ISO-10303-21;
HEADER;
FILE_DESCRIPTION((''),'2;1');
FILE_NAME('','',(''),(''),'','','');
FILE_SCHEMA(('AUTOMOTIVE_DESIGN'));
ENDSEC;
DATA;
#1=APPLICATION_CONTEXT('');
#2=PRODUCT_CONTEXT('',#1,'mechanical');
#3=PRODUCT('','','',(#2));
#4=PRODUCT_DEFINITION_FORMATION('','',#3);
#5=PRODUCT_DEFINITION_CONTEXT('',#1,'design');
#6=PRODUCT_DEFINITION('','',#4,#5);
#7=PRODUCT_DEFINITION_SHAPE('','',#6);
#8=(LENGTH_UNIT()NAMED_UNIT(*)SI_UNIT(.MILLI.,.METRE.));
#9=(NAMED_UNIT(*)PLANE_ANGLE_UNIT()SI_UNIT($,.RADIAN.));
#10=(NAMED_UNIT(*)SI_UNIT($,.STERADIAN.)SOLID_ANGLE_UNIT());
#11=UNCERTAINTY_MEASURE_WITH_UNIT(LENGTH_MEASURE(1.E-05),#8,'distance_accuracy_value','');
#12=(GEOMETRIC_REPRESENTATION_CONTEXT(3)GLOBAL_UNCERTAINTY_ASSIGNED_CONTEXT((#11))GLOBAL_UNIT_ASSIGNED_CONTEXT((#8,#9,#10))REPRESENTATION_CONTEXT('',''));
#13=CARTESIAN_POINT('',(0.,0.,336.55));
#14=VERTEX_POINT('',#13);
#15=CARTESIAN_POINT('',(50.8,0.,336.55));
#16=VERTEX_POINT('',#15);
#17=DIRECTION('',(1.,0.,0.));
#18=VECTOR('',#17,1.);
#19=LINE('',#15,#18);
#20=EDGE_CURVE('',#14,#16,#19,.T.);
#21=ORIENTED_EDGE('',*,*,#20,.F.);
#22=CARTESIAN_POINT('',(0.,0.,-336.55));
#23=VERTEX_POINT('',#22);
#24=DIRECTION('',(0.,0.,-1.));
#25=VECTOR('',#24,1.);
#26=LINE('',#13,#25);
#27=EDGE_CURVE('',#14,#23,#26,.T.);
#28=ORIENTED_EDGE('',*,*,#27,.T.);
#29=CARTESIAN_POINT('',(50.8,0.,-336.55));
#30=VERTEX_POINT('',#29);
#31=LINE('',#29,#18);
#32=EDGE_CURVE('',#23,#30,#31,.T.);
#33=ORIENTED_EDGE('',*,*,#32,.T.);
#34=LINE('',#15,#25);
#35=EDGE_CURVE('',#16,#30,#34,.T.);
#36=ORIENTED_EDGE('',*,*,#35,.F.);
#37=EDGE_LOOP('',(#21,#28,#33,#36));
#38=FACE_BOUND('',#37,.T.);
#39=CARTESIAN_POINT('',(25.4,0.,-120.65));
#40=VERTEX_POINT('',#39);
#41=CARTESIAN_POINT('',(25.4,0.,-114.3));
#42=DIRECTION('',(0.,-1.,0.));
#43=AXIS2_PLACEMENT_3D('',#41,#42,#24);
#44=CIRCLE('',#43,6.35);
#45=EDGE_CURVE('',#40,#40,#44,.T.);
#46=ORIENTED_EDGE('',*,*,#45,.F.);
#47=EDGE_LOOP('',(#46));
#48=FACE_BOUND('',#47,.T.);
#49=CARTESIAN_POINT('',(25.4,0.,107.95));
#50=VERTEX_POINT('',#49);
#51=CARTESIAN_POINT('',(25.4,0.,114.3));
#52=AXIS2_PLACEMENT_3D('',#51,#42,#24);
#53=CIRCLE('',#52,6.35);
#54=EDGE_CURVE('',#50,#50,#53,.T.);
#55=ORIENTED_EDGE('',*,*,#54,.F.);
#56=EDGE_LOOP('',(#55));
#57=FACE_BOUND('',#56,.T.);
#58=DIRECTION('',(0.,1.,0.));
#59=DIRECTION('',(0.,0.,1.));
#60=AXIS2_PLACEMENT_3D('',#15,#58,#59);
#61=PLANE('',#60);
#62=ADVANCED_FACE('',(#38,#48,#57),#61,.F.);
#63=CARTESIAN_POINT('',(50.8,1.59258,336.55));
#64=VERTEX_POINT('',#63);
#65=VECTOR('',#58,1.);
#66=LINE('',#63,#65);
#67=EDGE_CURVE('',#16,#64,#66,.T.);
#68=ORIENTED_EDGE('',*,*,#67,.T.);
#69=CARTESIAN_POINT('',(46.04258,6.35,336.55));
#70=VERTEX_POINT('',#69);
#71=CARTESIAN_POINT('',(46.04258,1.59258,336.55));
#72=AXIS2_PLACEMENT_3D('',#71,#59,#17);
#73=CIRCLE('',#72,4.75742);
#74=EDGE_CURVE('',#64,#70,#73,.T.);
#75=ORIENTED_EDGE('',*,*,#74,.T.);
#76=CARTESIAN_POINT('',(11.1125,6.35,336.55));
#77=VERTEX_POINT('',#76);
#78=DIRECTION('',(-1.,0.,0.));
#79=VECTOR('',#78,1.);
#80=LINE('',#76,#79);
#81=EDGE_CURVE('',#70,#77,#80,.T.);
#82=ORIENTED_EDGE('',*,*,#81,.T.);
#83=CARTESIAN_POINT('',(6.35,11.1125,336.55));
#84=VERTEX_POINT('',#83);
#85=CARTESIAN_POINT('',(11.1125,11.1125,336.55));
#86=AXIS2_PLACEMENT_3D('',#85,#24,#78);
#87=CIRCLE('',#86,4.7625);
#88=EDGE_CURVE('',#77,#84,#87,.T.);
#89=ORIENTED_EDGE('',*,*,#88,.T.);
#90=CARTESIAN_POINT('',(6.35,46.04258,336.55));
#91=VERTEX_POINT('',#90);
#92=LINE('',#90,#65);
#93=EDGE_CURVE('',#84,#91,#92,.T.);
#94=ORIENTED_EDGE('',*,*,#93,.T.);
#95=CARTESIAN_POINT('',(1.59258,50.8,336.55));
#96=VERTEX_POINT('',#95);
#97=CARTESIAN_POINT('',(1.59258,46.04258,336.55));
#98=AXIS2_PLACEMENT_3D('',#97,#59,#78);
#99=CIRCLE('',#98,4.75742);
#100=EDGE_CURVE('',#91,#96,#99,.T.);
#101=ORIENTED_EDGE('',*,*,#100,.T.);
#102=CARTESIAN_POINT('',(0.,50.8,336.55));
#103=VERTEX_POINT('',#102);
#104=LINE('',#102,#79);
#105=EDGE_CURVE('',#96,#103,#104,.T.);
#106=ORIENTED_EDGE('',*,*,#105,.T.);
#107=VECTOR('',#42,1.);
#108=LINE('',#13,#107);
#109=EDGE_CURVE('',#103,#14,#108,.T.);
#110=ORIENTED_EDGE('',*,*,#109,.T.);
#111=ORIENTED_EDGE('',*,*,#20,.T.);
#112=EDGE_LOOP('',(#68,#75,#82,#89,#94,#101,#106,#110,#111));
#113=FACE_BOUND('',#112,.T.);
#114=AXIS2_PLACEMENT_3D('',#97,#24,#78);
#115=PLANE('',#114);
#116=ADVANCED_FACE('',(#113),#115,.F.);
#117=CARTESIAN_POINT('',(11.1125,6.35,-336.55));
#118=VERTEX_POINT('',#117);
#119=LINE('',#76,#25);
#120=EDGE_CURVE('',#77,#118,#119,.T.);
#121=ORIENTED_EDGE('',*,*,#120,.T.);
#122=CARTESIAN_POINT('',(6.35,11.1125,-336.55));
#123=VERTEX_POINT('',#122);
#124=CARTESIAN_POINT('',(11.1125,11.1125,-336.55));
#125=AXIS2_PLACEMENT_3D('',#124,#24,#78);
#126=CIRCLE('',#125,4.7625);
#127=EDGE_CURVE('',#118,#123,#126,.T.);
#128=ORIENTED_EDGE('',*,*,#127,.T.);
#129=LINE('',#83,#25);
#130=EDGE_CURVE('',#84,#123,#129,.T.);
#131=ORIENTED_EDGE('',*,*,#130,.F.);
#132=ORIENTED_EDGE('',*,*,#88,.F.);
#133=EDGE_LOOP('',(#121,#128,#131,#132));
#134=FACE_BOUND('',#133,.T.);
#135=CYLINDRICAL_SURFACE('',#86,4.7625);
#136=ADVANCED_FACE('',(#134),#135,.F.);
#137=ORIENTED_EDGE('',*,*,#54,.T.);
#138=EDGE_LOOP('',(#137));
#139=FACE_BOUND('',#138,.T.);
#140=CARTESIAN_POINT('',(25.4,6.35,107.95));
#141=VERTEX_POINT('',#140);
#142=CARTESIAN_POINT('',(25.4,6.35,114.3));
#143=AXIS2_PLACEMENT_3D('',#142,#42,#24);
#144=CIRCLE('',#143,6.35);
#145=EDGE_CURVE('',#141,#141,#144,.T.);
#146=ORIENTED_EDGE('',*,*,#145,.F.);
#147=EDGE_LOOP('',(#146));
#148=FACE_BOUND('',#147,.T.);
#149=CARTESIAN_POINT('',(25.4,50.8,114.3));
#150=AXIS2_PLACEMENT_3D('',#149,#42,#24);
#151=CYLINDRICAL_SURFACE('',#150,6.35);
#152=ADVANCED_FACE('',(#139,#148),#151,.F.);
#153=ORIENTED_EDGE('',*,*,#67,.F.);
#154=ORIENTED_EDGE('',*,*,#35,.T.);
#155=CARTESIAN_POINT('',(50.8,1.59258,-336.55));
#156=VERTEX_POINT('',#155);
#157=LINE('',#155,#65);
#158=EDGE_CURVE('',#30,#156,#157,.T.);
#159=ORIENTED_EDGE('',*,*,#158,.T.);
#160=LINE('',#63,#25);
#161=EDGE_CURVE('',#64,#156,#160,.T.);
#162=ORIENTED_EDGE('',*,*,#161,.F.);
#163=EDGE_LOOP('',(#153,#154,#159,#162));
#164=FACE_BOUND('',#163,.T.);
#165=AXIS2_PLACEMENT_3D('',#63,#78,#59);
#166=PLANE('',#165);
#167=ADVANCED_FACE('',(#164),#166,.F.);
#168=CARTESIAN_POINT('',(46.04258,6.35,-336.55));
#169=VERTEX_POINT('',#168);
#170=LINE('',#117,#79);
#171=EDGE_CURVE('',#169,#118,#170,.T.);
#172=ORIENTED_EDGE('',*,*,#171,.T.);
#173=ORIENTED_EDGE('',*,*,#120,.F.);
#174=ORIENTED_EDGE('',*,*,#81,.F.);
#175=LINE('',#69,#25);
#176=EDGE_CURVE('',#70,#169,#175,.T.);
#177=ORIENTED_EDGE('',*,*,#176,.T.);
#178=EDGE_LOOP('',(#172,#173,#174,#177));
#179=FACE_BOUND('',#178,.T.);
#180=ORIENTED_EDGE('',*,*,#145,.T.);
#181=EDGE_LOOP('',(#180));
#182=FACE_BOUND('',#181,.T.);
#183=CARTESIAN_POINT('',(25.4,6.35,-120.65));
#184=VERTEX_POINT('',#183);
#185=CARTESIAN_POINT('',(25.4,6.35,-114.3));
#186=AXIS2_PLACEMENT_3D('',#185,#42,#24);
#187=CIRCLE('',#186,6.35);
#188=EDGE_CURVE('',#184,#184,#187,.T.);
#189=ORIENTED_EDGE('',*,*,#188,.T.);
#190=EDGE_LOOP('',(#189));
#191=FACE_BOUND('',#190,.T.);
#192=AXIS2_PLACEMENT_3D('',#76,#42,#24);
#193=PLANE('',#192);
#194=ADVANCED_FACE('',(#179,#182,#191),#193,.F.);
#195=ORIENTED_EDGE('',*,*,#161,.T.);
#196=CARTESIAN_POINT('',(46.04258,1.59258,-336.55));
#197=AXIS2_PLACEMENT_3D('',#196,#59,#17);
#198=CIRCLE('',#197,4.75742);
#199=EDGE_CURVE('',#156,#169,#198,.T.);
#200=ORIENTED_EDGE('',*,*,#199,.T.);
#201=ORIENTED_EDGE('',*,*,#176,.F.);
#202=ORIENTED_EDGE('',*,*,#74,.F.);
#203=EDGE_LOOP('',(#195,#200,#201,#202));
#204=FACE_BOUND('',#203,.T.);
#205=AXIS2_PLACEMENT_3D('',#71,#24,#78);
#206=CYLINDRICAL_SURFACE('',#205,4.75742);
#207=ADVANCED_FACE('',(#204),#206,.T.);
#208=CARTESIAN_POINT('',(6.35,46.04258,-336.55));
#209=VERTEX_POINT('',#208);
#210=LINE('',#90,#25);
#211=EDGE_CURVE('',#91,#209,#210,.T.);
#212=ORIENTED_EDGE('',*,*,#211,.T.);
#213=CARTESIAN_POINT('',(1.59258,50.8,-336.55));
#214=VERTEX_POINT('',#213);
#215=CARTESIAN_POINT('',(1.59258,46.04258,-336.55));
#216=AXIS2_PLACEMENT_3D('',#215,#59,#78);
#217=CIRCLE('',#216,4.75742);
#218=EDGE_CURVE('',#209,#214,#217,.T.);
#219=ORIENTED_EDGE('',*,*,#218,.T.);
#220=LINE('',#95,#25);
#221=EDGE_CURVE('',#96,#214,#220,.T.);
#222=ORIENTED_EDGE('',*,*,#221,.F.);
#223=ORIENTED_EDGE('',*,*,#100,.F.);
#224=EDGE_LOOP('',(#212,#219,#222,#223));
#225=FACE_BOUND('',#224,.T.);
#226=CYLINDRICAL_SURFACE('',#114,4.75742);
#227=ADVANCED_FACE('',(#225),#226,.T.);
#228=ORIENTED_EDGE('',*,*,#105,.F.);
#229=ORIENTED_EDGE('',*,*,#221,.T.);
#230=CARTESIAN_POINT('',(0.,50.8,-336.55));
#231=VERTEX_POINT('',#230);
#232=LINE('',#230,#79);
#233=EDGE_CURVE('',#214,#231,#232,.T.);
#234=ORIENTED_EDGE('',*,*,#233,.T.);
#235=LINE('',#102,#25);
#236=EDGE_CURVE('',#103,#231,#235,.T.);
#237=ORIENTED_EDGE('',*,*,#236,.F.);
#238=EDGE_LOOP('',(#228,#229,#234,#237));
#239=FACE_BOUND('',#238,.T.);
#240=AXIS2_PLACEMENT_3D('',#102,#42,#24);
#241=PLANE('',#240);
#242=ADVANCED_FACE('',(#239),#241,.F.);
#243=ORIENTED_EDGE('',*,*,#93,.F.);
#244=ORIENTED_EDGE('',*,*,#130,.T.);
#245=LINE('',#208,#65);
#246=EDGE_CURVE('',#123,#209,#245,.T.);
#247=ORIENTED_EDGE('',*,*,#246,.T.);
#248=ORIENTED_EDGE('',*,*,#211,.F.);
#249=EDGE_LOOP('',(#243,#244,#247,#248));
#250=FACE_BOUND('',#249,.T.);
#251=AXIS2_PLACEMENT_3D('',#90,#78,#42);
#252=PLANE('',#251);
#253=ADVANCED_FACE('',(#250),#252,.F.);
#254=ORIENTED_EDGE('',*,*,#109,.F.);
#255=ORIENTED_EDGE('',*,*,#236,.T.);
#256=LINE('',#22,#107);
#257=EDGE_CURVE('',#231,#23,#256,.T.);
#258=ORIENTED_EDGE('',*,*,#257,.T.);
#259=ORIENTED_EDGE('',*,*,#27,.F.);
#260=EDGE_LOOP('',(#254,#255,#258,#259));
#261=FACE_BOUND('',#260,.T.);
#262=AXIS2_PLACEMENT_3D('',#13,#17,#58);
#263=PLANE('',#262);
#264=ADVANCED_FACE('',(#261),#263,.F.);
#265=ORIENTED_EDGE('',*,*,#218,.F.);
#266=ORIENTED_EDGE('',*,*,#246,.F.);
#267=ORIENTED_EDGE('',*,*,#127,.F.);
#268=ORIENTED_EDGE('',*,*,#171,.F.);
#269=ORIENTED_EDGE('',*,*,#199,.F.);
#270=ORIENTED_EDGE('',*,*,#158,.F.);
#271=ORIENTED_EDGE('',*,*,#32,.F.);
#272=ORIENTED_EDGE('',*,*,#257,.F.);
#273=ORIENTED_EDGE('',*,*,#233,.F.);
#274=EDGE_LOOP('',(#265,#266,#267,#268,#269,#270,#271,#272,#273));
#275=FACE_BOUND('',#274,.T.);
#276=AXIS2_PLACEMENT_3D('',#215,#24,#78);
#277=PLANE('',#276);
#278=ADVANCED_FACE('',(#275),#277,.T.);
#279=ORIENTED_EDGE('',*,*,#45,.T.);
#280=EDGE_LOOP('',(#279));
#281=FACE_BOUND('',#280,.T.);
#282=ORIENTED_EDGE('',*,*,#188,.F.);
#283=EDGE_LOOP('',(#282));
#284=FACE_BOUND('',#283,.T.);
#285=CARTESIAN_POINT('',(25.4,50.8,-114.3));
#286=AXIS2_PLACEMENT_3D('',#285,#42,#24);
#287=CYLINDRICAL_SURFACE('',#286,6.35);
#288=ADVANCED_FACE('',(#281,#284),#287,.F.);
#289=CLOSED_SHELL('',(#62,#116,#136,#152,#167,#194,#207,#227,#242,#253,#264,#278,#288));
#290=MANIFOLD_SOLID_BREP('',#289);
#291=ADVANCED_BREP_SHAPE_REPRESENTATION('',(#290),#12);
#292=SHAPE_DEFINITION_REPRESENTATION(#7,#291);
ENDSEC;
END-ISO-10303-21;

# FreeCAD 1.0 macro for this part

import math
import FreeCAD as App
import Part
import Sketcher
Q = App.Units.Quantity

doc = App.newDocument("Part")
body = doc.addObject("PartDesign::Body", "Body")

sketch1 = doc.addObject("Sketcher::SketchObject", "Sketch")
body.addObject(sketch1)
sketch1.AttachmentSupport = (doc.XY_Plane, [""])
sketch1.MapMode = "FlatFace"
sketch1.addGeometry([
    Part.LineSegment(App.Vector(0, 50.8, 0), App.Vector(0, 0, 0)),
    Part.LineSegment(App.Vector(0, 0, 0), App.Vector(50.8, 0, 0)),
    Part.LineSegment(App.Vector(50.8, 0, 0), App.Vector(50.8, 1.6, 0)),
    Part.ArcOfCircle(Part.Circle(App.Vector(46, 1.6, 0), App.Vector(0, 0, 1), 4.8), math.radians(0), math.radians(90)),
    Part.LineSegment(App.Vector(46, 6.3, 0), App.Vector(11.1, 6.3, 0)),
    Part.ArcOfCircle(Part.Circle(App.Vector(11.1, 11.1, 0), App.Vector(0, 0, 1), 4.8), math.radians(-180), math.radians(-90)),
    Part.LineSegment(App.Vector(6.3, 11.1, 0), App.Vector(6.3, 46, 0)),
    Part.ArcOfCircle(Part.Circle(App.Vector(1.6, 46, 0), App.Vector(0, 0, 1), 4.8), math.radians(0), math.radians(90)),
    Part.LineSegment(App.Vector(1.6, 50.8, 0), App.Vector(0, 50.8, 0)),
], False)
sketch1.addConstraint([
    Sketcher.Constraint("Coincident", 0, 2, 1, 1),
    Sketcher.Constraint("Coincident", 1, 2, 2, 1),
    Sketcher.Constraint("Tangent", 2, 2, 3, 1),
    Sketcher.Constraint("Tangent", 3, 2, 4, 1),
    Sketcher.Constraint("Tangent", 4, 2, 5, 2),
    Sketcher.Constraint("Tangent", 5, 1, 6, 1),
    Sketcher.Constraint("Tangent", 6, 2, 7, 1),
    Sketcher.Constraint("Tangent", 7, 2, 8, 1),
    Sketcher.Constraint("Coincident", 8, 2, 0, 1),
    Sketcher.Constraint("Vertical", 0),
    Sketcher.Constraint("Horizontal", 1),
    Sketcher.Constraint("Vertical", 2),
    Sketcher.Constraint("Horizontal", 4),
    Sketcher.Constraint("Vertical", 6),
    Sketcher.Constraint("Horizontal", 8),
    Sketcher.Constraint("Coincident", 0, 2, -1, 1),
    Sketcher.Constraint("Equal", 3, 7),
    Sketcher.Constraint("Equal", 1, 0),
    Sketcher.Constraint("Equal", 8, 2),
    Sketcher.Constraint("DistanceX", 1, 1, 1, 2, Q("2 in")),
    Sketcher.Constraint("Radius", 5, Q("0.1875 in")),
    Sketcher.Constraint("Radius", 3, Q("0.1873 in")),
    Sketcher.Constraint("DistanceY", -1, 1, 3, 2, Q("0.25 in")),
])
pad1 = doc.addObject("PartDesign::Pad", "Pad")
body.addObject(pad1)
pad1.Profile = sketch1
pad1.Length = Q("26.5 in")
pad1.Midplane = True

sketch2 = doc.addObject("Sketcher::SketchObject", "Sketch001")
body.addObject(sketch2)
sketch2.AttachmentSupport = (doc.XZ_Plane, [""])
sketch2.MapMode = "FlatFace"
sketch2.addGeometry([
    Part.Circle(App.Vector(25, -114, 0), App.Vector(0, 0, 1), 6),
    Part.Circle(App.Vector(25, 114, 0), App.Vector(0, 0, 1), 6),
], False)
sketch2.addConstraint([
    Sketcher.Constraint("Equal", 0, 1),
    Sketcher.Constraint("Symmetric", 0, 3, 1, 3, -1),
    Sketcher.Constraint("Diameter", 0, Q("0.5 in")),
    Sketcher.Constraint("DistanceX", -1, 1, 0, 3, Q("1 in")),
    Sketcher.Constraint("DistanceY", 0, 3, 1, 3, Q("9 in")),
])
pocket1 = doc.addObject("PartDesign::Pocket", "Pocket")
body.addObject(pocket1)
pocket1.Profile = sketch2
pocket1.Type = "ThroughAll"

doc.recompute()
